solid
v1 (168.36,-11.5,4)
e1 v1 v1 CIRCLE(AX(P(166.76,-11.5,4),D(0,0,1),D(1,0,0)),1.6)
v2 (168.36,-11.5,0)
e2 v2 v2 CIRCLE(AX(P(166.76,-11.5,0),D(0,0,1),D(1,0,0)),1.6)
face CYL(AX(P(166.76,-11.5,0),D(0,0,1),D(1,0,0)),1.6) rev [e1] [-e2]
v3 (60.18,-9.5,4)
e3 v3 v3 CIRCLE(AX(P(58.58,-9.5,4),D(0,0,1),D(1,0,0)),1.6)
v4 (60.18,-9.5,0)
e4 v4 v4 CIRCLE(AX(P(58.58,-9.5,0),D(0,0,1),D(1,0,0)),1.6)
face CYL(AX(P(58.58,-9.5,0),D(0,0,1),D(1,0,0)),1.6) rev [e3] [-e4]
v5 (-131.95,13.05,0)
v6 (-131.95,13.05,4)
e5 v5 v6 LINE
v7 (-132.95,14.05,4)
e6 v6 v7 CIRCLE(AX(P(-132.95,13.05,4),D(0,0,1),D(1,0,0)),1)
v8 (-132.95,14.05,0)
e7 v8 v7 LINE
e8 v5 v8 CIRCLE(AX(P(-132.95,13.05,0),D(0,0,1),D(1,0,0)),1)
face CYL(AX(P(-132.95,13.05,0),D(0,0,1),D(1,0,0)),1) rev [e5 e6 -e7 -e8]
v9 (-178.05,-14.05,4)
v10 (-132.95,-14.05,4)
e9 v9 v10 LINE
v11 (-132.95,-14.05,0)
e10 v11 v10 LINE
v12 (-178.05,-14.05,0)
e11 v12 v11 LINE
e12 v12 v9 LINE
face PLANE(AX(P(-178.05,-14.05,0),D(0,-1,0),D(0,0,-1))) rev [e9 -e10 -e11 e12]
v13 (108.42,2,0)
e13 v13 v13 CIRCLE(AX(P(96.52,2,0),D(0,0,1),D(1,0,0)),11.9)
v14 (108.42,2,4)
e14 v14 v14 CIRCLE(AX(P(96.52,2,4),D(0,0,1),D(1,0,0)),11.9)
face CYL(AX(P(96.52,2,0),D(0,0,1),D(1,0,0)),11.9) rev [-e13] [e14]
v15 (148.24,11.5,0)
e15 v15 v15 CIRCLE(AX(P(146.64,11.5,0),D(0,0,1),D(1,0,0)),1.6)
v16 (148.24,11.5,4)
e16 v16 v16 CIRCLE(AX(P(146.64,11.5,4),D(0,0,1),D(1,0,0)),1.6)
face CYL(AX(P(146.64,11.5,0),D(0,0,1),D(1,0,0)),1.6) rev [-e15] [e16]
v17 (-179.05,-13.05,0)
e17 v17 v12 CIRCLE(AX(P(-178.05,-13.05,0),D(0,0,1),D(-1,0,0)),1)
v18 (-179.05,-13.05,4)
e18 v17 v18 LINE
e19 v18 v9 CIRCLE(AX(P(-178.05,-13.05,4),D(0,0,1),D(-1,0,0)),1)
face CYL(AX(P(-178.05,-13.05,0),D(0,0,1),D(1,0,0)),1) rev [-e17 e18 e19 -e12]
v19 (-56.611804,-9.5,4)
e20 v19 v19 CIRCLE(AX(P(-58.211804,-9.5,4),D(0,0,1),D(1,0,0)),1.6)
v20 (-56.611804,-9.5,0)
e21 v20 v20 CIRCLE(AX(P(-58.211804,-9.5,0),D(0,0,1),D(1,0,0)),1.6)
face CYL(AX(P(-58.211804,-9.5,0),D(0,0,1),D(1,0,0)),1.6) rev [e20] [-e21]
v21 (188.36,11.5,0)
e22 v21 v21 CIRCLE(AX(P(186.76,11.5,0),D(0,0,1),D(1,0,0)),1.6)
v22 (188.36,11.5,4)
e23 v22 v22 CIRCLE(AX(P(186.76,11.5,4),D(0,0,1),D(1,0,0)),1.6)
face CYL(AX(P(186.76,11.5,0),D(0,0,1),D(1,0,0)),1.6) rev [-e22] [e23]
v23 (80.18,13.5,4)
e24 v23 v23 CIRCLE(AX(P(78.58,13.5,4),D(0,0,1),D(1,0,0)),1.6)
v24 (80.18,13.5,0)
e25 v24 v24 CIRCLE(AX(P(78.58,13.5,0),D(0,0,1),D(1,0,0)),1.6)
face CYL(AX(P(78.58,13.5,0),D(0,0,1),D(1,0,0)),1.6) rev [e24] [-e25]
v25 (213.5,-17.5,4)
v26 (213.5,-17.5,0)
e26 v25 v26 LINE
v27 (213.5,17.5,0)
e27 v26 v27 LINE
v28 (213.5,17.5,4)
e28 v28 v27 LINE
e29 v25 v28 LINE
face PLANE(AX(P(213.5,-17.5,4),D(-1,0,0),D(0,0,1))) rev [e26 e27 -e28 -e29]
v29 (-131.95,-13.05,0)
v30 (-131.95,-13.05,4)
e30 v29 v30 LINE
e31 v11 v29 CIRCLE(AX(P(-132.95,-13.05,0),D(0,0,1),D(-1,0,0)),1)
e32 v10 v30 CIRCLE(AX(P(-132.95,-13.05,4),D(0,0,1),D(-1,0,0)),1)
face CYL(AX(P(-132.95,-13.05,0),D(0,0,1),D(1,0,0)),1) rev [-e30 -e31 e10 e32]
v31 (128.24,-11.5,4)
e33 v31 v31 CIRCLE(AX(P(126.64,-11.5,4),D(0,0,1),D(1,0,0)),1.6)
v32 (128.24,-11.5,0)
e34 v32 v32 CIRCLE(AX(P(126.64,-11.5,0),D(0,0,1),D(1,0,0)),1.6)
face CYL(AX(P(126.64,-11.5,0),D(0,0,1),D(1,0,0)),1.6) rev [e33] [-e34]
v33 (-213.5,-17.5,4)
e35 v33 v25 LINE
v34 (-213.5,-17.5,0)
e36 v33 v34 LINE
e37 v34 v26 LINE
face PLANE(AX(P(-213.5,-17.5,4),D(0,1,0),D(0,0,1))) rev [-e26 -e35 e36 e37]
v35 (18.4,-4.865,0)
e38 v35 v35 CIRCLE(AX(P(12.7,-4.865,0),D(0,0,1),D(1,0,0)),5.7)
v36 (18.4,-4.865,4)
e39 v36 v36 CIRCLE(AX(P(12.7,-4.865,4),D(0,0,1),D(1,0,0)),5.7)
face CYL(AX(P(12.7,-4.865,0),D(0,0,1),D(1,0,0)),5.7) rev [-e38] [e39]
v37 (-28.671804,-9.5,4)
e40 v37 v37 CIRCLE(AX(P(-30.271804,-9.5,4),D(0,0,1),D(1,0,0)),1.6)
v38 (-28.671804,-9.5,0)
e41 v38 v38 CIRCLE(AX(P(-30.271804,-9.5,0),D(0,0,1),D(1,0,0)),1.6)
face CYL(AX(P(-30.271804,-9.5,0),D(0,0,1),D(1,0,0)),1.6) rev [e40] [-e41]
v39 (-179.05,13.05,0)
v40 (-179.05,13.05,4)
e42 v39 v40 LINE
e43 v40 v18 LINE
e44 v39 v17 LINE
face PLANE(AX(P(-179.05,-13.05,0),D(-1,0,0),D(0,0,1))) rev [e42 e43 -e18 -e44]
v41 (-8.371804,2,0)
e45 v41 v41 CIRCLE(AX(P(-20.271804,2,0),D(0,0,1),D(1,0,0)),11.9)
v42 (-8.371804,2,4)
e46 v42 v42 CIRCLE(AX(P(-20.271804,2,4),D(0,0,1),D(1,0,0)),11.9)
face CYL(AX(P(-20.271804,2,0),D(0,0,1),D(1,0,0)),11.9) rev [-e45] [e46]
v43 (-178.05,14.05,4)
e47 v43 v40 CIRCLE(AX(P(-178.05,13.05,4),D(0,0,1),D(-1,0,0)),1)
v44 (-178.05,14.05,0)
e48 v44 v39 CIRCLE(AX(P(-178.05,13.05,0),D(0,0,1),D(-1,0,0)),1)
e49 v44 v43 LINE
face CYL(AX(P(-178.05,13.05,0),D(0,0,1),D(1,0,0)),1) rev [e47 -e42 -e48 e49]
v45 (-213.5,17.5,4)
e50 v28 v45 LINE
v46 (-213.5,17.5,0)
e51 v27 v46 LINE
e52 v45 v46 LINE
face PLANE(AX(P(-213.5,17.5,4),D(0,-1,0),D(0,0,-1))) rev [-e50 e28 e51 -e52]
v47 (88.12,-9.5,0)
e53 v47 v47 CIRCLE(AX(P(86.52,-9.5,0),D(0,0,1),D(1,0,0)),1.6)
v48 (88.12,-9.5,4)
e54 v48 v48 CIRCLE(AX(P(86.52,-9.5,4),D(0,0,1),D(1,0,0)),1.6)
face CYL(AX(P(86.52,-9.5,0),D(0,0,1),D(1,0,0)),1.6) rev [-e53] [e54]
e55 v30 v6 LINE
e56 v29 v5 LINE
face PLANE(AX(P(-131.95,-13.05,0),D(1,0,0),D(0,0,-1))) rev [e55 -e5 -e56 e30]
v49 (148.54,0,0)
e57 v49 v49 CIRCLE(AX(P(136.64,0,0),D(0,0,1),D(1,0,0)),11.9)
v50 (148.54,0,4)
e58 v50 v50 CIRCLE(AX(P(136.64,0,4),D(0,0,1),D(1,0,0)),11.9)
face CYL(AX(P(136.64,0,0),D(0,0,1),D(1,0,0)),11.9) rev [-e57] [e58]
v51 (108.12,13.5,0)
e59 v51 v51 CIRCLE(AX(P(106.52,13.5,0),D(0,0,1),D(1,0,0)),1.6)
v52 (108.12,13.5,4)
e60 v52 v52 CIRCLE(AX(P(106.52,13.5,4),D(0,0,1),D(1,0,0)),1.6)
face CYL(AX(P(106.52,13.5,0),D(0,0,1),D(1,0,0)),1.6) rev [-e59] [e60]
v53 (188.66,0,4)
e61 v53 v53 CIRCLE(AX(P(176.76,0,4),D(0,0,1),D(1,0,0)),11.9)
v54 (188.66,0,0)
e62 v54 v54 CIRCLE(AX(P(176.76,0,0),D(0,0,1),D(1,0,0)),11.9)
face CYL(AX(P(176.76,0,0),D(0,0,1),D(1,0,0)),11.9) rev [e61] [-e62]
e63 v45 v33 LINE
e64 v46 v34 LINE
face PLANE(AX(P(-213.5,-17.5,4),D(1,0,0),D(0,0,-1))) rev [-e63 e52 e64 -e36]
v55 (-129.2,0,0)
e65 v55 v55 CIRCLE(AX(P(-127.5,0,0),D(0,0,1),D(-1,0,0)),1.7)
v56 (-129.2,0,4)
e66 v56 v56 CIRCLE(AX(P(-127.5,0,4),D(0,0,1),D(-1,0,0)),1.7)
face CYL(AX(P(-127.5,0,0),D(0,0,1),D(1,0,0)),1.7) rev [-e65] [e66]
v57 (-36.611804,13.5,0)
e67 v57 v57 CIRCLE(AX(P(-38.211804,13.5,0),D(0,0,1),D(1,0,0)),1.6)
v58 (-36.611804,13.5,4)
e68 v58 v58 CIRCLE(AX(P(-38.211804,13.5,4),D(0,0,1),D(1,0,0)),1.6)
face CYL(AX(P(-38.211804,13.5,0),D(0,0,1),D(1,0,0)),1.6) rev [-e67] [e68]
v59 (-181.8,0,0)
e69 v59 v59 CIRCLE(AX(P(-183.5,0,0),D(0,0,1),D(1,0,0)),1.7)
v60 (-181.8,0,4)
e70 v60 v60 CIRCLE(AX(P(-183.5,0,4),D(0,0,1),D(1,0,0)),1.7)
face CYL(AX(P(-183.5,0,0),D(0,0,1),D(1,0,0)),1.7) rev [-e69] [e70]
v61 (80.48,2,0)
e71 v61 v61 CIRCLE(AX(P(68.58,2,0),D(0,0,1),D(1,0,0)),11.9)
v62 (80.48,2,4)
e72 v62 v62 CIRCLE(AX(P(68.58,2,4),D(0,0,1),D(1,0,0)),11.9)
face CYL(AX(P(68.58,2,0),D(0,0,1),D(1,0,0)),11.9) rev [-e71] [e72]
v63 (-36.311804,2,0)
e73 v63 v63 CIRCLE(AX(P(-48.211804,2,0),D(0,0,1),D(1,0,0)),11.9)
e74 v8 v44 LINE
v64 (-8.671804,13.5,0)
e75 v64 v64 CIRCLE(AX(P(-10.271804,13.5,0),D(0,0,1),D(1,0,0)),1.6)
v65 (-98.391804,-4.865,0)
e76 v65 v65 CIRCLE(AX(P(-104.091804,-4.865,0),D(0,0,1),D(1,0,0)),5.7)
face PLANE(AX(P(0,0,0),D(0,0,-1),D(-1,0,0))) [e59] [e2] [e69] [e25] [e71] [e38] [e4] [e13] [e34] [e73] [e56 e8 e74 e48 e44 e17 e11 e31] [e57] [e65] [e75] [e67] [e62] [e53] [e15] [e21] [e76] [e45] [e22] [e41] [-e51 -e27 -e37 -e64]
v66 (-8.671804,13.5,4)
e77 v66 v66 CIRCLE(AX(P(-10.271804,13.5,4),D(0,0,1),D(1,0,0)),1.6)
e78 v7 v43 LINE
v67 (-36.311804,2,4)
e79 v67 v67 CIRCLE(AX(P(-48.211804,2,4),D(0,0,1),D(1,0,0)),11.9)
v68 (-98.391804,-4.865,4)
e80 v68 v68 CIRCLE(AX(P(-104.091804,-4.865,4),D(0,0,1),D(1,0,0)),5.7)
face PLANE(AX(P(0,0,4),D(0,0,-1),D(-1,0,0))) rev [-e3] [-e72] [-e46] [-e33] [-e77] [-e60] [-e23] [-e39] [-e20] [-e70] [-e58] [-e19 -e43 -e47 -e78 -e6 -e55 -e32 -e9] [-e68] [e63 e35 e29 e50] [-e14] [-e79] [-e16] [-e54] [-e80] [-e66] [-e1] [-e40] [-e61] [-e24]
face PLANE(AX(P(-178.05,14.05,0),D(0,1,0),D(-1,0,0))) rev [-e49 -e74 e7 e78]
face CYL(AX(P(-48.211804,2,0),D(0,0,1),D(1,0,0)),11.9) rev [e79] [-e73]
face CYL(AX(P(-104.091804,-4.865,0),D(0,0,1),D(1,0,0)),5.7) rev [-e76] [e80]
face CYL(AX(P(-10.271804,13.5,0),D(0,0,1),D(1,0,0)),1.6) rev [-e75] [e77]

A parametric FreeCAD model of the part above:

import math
import FreeCAD as App
import Part
import Sketcher

V = App.Vector
Q = App.Units.Quantity


def add_polygon(sketch, points):
    """Adds a closed chain of lines whose ends are joined by coincident constraints."""
    first, n = sketch.GeometryCount, len(points)
    for a, b in zip(points, points[1:] + points[:1]):
        sketch.addGeometry(Part.LineSegment(App.Vector(*a, 0), App.Vector(*b, 0)), False)
    for i in range(n):
        sketch.addConstraint(Sketcher.Constraint("Coincident", first + i, 2, first + (i + 1) % n, 1))

doc = App.newDocument("Part")
body = doc.addObject("PartDesign::Body", "Body")

sketch1 = body.newObject("Sketcher::SketchObject", "Sketch")
sketch1.AttachmentSupport = (doc.getObject("XY_Plane"), [""])
sketch1.MapMode = "FlatFace"
add_polygon(sketch1, [(-213.5, 17.5), (-213.5, -17.5), (213.5, -17.5), (213.5, 17.5)])
sketch1.addConstraint([
    Sketcher.Constraint("Vertical", 0),
    Sketcher.Constraint("Horizontal", 1),
    Sketcher.Constraint("Vertical", 2),
    Sketcher.Constraint("Horizontal", 3),
    Sketcher.Constraint("Symmetric", 0, 2, 2, 2, -1, 1),
    Sketcher.Constraint("DistanceX", 1, 1, 1, 2, Q("427 mm")),
    Sketcher.Constraint("DistanceY", 0, 2, 0, 1, Q("35 mm")),
])
pad1 = body.newObject("PartDesign::Pad", "Pad")
pad1.Profile = sketch1
pad1.Length = 4

sketch2 = body.newObject("Sketcher::SketchObject", "Sketch001")
sketch2.AttachmentSupport = (doc.getObject("XY_Plane"), [""])
sketch2.MapMode = "FlatFace"
sketch2.AttachmentOffset = App.Placement(V(0, 0, 4), App.Rotation())
sketch2.addGeometry([
    Part.Circle(V(-20.271804, 2, 0), V(0, 0, 1), 11.9),
    Part.Circle(V(-30.271804, -9.5, 0), V(0, 0, 1), 1.6),
    Part.Circle(V(-10.271804, 13.5, 0), V(0, 0, 1), 1.6),
    Part.Circle(V(-58.211804, -9.5, 0), V(0, 0, 1), 1.6),
    Part.Circle(V(-48.211804, 2, 0), V(0, 0, 1), 11.9),
    Part.Circle(V(-38.211804, 13.5, 0), V(0, 0, 1), 1.6),
    Part.Circle(V(126.64, -11.5, 0), V(0, 0, 1), 1.6),
    Part.Circle(V(146.64, 11.5, 0), V(0, 0, 1), 1.6),
    Part.Circle(V(136.64, 0, 0), V(0, 0, 1), 11.9),
    Part.Circle(V(166.76, -11.5, 0), V(0, 0, 1), 1.6),
    Part.Circle(V(186.76, 11.5, 0), V(0, 0, 1), 1.6),
    Part.Circle(V(176.76, 0, 0), V(0, 0, 1), 11.9),
    Part.Circle(V(-104.091804, -4.865, 0), V(0, 0, 1), 5.7),
    Part.Circle(V(86.52, -9.5, 0), V(0, 0, 1), 1.6),
    Part.Circle(V(106.52, 13.5, 0), V(0, 0, 1), 1.6),
    Part.Circle(V(68.58, 2, 0), V(0, 0, 1), 11.9),
    Part.Circle(V(96.52, 2, 0), V(0, 0, 1), 11.9),
    Part.Circle(V(12.7, -4.865, 0), V(0, 0, 1), 5.7),
    Part.Circle(V(78.58, 13.5, 0), V(0, 0, 1), 1.6),
    Part.Circle(V(58.58, -9.5, 0), V(0, 0, 1), 1.6),
    Part.Circle(V(-127.5, 0, 0), V(0, 0, 1), 1.7),
    Part.Circle(V(-183.5, 0, 0), V(0, 0, 1), 1.7),
    Part.LineSegment(V(-178.05, -14.05, 0), V(-132.95, -14.05, 0)),
    Part.ArcOfCircle(Part.Circle(V(-132.95, -13.05, 0), V(0, 0, 1), 1), math.radians(-90), math.radians(0)),
    Part.LineSegment(V(-131.95, -13.05, 0), V(-131.95, 13.05, 0)),
    Part.ArcOfCircle(Part.Circle(V(-132.95, 13.05, 0), V(0, 0, 1), 1), math.radians(0), math.radians(90)),
    Part.LineSegment(V(-132.95, 14.05, 0), V(-178.05, 14.05, 0)),
    Part.ArcOfCircle(Part.Circle(V(-178.05, 13.05, 0), V(0, 0, 1), 1), math.radians(90), math.radians(180)),
    Part.LineSegment(V(-179.05, 13.05, 0), V(-179.05, -13.05, 0)),
    Part.ArcOfCircle(Part.Circle(V(-178.05, -13.05, 0), V(0, 0, 1), 1), math.radians(-180), math.radians(-90)),
], False)
sketch2.addConstraint([
    Sketcher.Constraint("Tangent", 22, 2, 23, 1),
    Sketcher.Constraint("Tangent", 23, 2, 24, 1),
    Sketcher.Constraint("Tangent", 24, 2, 25, 1),
    Sketcher.Constraint("Tangent", 25, 2, 26, 1),
    Sketcher.Constraint("Tangent", 26, 2, 27, 1),
    Sketcher.Constraint("Tangent", 27, 2, 28, 1),
    Sketcher.Constraint("Tangent", 28, 2, 29, 1),
    Sketcher.Constraint("Tangent", 29, 2, 22, 1),
    Sketcher.Constraint("Horizontal", 22),
    Sketcher.Constraint("Vertical", 24),
    Sketcher.Constraint("Horizontal", 26),
    Sketcher.Constraint("Vertical", 28),
    Sketcher.Constraint("Equal", 1, 2),
    Sketcher.Constraint("Equal", 2, 3),
    Sketcher.Constraint("Equal", 0, 4),
    Sketcher.Constraint("Equal", 3, 5),
    Sketcher.Constraint("Equal", 5, 6),
    Sketcher.Constraint("Equal", 6, 7),
    Sketcher.Constraint("Equal", 4, 8),
    Sketcher.Constraint("Equal", 7, 9),
    Sketcher.Constraint("Equal", 9, 10),
    Sketcher.Constraint("Equal", 8, 11),
    Sketcher.Constraint("Equal", 10, 13),
    Sketcher.Constraint("Equal", 13, 14),
    Sketcher.Constraint("Equal", 11, 15),
    Sketcher.Constraint("Equal", 15, 16),
    Sketcher.Constraint("Equal", 12, 17),
    Sketcher.Constraint("Equal", 14, 18),
    Sketcher.Constraint("Equal", 18, 19),
    Sketcher.Constraint("Equal", 20, 21),
    Sketcher.Constraint("Equal", 23, 25),
    Sketcher.Constraint("Equal", 25, 27),
    Sketcher.Constraint("Equal", 27, 29),
    Sketcher.Constraint("PointOnObject", 8, 3, -1),
    Sketcher.Constraint("PointOnObject", 11, 3, -1),
    Sketcher.Constraint("PointOnObject", 20, 3, -1),
    Sketcher.Constraint("PointOnObject", 21, 3, -1),
    Sketcher.Constraint("Horizontal", 1, 3, 3, 3),
    Sketcher.Constraint("Horizontal", 0, 3, 4, 3),
    Sketcher.Constraint("Horizontal", 2, 3, 5, 3),
    Sketcher.Constraint("Horizontal", 6, 3, 9, 3),
    Sketcher.Constraint("Horizontal", 7, 3, 10, 3),
    Sketcher.Constraint("Horizontal", 3, 3, 13, 3),
    Sketcher.Constraint("Horizontal", 5, 3, 14, 3),
    Sketcher.Constraint("Horizontal", 4, 3, 15, 3),
    Sketcher.Constraint("Horizontal", 15, 3, 16, 3),
    Sketcher.Constraint("Horizontal", 12, 3, 17, 3),
    Sketcher.Constraint("Horizontal", 14, 3, 18, 3),
    Sketcher.Constraint("Horizontal", 13, 3, 19, 3),
    Sketcher.Constraint("Radius", 23, Q("1 mm")),
    Sketcher.Constraint("Diameter", 0, Q("23.8 mm")),
    Sketcher.Constraint("Diameter", 1, Q("3.2 mm")),
    Sketcher.Constraint("Diameter", 12, Q("11.4 mm")),
    Sketcher.Constraint("Diameter", 20, Q("3.4 mm")),
    Sketcher.Constraint("DistanceX", 22, 1, 22, 2, Q("45.1 mm")),
    Sketcher.Constraint("DistanceY", 24, 1, 24, 2, Q("26.1 mm")),
    Sketcher.Constraint("DistanceY", -1, 1, 0, 3, Q("2 mm")),
    Sketcher.Constraint("DistanceX", 1, 3, 0, 3, Q("10 mm")),
    Sketcher.Constraint("DistanceX", 0, 3, 2, 3, Q("10 mm")),
    Sketcher.Constraint("DistanceY", 1, 3, 2, 3, Q("23 mm")),
    Sketcher.Constraint("DistanceX", 3, 3, 4, 3, Q("10 mm")),
    Sketcher.Constraint("DistanceX", 4, 3, 5, 3, Q("10 mm")),
    Sketcher.Constraint("DistanceY", 6, 3, 2, 3, Q("25 mm")),
    Sketcher.Constraint("DistanceX", 6, 3, 7, 3, Q("20 mm")),
    Sketcher.Constraint("DistanceY", 6, 3, 7, 3, Q("23 mm")),
    Sketcher.Constraint("DistanceX", 6, 3, 8, 3, Q("10 mm")),
    Sketcher.Constraint("DistanceX", 9, 3, 10, 3, Q("20 mm")),
    Sketcher.Constraint("DistanceX", 9, 3, 11, 3, Q("10 mm")),
    Sketcher.Constraint("DistanceX", 13, 3, 14, 3, Q("20 mm")),
    Sketcher.Constraint("DistanceX", 13, 3, 16, 3, Q("10 mm")),
    Sketcher.Constraint("DistanceX", 15, 3, 18, 3, Q("10 mm")),
    Sketcher.Constraint("DistanceX", 19, 3, 15, 3, Q("10 mm")),
    Sketcher.Constraint("DistanceX", 21, 3, 20, 3, Q("56 mm")),
    Sketcher.Constraint("DistanceY", 1, 3, -1, 1, Q("9.5 mm")),
    Sketcher.Constraint("DistanceX", -1, 1, 17, 3, Q("12.7 mm")),
    Sketcher.Constraint("DistanceX", 20, 3, -1, 1, Q("127.5 mm")),
    Sketcher.Constraint("DistanceX", -1, 1, 6, 3, Q("126.64 mm")),
    Sketcher.Constraint("DistanceX", -1, 1, 9, 3, Q("166.76 mm")),
    Sketcher.Constraint("DistanceX", -1, 1, 13, 3, Q("86.52 mm")),
    Sketcher.Constraint("DistanceX", -1, 1, 15, 3, Q("68.58 mm")),
    Sketcher.Constraint("DistanceX", 23, 3, -1, 1, Q("132.95 mm")),
    Sketcher.Constraint("DistanceY", 23, 3, -1, 1, Q("13.05 mm")),
    Sketcher.Constraint("DistanceX", 3, 3, 1, 3, Q("27.94 mm")),
    Sketcher.Constraint("DistanceX", 12, 3, 3, 3, Q("45.88 mm")),
    Sketcher.Constraint("DistanceY", 12, 3, -1, 1, Q("4.865 mm")),
    Sketcher.Constraint("DistanceX", 0, 3, -1, 1, Q("20.271804 mm")),
])
pocket1 = body.newObject("PartDesign::Pocket", "Pocket")
pocket1.Profile = sketch2
pocket1.Length = 4

doc.recompute()
